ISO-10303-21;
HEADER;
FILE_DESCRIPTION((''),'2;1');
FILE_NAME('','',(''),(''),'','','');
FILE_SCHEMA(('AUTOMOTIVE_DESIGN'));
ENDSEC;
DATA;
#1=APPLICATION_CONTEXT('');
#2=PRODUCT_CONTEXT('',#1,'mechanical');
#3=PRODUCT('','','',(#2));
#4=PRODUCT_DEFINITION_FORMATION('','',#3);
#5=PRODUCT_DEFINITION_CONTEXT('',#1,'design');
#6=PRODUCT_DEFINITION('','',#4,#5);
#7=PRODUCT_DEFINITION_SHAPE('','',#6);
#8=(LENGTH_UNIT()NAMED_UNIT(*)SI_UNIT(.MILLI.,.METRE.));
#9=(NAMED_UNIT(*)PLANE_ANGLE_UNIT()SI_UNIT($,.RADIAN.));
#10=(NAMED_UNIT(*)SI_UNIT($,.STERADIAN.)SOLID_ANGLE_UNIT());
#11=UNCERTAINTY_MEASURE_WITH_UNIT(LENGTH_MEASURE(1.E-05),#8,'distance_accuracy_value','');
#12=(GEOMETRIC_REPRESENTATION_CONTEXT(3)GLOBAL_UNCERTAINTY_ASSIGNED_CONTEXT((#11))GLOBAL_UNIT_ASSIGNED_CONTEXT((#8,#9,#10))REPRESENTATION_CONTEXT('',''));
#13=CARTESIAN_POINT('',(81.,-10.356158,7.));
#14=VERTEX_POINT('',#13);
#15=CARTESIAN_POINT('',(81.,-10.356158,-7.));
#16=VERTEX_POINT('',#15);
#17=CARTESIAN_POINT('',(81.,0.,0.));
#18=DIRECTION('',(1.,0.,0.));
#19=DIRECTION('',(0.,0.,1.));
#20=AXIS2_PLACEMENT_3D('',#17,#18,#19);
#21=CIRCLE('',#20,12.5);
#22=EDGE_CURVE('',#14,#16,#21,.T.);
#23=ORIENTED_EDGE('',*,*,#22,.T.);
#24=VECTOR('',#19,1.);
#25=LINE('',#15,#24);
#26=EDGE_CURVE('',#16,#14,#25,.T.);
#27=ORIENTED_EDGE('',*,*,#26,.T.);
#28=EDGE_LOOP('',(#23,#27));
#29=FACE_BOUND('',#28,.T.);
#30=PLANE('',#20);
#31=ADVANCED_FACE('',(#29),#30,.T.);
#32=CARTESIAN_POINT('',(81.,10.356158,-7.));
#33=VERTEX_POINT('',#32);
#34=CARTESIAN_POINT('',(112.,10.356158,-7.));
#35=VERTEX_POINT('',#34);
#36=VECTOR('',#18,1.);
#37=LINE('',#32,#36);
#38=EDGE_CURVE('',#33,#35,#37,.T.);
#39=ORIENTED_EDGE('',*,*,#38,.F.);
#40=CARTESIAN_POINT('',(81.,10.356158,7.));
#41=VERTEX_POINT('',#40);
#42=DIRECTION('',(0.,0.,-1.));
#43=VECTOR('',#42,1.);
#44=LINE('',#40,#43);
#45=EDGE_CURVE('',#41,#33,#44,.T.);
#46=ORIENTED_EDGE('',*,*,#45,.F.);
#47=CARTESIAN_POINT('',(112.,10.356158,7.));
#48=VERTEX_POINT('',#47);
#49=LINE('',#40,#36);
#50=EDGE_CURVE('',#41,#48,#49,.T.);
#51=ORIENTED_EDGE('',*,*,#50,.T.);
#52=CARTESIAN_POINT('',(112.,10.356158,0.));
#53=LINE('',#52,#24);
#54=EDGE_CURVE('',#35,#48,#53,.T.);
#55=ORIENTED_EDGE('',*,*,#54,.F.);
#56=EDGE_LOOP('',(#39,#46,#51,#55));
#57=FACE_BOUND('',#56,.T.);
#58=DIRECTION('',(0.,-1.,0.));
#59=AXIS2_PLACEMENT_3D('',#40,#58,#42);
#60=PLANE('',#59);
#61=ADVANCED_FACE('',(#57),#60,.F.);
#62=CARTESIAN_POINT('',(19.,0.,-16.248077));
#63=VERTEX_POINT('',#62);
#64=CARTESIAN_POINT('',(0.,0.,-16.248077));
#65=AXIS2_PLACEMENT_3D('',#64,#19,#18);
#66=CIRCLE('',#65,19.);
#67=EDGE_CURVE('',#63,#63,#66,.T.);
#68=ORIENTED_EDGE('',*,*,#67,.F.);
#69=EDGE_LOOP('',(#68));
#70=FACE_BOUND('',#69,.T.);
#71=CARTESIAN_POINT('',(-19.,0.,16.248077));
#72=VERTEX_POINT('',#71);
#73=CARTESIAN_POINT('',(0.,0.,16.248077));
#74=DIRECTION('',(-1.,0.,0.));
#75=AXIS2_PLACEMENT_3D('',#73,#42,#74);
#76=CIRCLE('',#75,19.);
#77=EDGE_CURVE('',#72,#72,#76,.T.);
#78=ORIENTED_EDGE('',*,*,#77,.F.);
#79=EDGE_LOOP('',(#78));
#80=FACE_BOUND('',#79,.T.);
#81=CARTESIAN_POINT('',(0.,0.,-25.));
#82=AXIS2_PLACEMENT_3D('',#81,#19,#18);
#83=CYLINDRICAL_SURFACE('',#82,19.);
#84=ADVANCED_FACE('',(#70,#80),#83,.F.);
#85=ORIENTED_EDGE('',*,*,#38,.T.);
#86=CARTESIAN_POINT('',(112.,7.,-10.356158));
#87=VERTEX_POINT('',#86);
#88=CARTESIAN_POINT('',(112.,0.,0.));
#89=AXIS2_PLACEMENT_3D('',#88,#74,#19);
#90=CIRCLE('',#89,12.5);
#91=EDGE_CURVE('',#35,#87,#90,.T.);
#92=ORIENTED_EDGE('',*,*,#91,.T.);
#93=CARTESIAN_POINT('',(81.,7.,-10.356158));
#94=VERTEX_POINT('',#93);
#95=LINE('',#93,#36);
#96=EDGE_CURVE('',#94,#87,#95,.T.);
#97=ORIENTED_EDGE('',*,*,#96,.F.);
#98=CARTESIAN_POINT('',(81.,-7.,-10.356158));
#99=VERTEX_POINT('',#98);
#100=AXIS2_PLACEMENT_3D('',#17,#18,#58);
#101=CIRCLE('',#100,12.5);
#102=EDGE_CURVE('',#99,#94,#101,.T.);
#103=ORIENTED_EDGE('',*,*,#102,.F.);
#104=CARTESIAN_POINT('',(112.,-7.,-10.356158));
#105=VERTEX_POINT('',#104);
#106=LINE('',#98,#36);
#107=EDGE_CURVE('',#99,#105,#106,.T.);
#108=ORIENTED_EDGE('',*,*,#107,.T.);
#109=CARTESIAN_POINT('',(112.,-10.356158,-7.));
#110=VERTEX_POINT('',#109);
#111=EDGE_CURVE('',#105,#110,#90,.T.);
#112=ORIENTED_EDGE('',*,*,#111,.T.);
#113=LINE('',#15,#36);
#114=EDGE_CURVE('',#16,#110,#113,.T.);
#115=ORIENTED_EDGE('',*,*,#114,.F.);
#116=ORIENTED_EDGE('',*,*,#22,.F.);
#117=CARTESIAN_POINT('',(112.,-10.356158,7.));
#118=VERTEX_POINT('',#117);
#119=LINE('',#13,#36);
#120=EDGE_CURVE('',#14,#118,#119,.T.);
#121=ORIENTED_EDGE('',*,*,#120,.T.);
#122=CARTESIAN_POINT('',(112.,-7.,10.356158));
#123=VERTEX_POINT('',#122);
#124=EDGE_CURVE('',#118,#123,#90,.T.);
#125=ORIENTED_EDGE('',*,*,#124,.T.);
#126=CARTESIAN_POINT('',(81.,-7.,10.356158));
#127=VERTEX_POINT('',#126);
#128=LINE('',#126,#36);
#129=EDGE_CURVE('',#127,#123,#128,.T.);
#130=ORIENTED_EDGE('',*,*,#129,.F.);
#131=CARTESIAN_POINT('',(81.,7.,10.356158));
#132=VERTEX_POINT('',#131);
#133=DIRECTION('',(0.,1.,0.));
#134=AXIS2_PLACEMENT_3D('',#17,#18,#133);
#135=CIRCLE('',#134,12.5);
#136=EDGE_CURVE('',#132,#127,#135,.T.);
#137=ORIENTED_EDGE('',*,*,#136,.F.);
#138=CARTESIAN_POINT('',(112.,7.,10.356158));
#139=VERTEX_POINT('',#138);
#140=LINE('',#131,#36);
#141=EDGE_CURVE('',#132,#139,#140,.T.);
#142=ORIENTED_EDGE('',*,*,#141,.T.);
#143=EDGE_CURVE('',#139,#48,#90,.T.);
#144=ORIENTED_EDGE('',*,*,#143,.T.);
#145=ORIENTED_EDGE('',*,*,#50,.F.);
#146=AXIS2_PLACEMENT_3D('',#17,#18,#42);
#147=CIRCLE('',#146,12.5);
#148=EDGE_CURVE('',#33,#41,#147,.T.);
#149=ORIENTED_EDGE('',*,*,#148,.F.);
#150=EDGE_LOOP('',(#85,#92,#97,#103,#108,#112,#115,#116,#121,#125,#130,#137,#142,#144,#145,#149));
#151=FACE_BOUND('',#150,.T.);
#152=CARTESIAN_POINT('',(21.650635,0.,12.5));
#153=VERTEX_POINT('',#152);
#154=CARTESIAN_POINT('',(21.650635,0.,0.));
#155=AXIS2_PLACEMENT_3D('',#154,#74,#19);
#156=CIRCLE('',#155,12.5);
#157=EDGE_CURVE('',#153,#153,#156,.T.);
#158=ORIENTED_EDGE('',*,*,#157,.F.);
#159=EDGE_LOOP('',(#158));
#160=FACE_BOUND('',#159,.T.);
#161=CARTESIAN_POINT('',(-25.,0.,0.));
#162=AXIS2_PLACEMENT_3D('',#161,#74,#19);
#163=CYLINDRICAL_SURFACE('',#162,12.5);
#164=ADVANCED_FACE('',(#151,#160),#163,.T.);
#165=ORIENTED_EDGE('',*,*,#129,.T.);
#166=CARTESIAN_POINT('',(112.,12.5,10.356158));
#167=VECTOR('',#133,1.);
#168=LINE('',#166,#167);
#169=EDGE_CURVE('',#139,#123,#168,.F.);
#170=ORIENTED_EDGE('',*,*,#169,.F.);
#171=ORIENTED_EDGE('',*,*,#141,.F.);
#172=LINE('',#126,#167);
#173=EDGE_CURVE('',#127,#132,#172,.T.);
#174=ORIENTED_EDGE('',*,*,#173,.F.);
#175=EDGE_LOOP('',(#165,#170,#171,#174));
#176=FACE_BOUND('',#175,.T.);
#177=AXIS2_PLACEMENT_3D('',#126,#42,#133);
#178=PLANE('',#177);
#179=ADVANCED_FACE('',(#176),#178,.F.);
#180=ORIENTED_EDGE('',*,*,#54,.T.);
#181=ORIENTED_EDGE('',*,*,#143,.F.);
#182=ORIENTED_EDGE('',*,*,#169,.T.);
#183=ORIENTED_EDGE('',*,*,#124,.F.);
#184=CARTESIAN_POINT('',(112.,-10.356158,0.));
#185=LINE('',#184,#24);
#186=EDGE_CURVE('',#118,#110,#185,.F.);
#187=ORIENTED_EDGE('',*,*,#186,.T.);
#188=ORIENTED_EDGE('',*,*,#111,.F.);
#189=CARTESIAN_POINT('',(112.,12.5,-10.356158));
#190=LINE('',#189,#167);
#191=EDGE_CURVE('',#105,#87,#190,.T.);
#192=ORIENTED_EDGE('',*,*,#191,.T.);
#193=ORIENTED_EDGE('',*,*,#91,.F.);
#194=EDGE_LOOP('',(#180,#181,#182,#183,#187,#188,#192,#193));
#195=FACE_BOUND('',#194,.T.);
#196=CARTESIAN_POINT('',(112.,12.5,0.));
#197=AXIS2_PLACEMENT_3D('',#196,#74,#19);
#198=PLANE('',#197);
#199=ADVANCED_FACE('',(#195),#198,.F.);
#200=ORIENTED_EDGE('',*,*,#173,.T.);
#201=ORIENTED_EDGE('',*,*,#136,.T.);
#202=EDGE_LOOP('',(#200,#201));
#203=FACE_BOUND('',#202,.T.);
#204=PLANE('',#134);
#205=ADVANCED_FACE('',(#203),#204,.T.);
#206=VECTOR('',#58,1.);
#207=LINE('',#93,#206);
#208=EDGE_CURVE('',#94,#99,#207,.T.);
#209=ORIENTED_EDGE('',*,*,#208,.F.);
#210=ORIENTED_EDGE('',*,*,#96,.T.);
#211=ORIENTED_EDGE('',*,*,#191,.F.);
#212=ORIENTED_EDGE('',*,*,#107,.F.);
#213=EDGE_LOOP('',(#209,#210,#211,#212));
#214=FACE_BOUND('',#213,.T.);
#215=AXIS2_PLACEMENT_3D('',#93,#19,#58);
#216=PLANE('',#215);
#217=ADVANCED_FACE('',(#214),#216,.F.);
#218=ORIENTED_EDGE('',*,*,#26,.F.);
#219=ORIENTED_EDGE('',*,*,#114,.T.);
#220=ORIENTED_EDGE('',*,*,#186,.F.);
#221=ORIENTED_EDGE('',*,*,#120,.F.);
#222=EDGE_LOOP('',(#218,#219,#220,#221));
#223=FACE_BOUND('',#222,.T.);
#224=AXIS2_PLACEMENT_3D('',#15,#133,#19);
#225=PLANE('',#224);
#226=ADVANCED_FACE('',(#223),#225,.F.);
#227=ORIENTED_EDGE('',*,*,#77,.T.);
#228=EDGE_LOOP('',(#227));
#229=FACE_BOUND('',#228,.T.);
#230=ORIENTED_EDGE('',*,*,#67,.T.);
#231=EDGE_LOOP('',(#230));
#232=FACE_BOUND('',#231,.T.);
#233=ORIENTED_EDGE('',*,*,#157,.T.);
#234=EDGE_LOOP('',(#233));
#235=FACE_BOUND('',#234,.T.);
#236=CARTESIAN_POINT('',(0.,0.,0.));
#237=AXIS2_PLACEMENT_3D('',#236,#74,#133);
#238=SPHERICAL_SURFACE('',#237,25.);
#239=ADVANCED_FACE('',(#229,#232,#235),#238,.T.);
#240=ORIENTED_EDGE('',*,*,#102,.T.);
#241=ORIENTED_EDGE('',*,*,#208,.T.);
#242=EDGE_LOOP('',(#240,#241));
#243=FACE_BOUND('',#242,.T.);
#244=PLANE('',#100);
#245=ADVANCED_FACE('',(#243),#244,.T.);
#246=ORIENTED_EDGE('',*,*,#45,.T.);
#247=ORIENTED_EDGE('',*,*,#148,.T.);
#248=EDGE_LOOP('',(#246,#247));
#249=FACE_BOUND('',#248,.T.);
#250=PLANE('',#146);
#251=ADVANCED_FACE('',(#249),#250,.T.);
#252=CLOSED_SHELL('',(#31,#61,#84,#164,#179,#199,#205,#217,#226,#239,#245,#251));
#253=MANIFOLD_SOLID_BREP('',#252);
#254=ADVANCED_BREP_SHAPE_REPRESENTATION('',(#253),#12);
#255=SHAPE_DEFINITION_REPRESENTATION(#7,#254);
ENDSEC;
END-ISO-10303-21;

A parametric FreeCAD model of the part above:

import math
import FreeCAD as App
import Part
import Sketcher
from FreeCAD import Vector

doc = App.newDocument("Part")
body = doc.addObject("PartDesign::Body", "Body")

sketch1 = body.newObject("Sketcher::SketchObject", "Sketch")
sketch1.AttachmentSupport = (doc.getObject("XY_Plane"), [""])
sketch1.MapMode = "FlatFace"
sketch1.addGeometry(Part.LineSegment(Vector(-25, 0, 0), Vector(112, 0, 0)), False)
sketch1.addGeometry(Part.LineSegment(Vector(112, 0, 0), Vector(112, 12, 0)), False)
sketch1.addGeometry(Part.LineSegment(Vector(112, 12, 0), Vector(22, 12, 0)), False)
sketch1.addGeometry(Part.ArcOfCircle(Part.Circle(Vector(0, 0, 0), Vector(0, 0, 1), 25), math.radians(30), math.radians(180)), False)
sketch1.addConstraint(Sketcher.Constraint("Coincident", 0, 2, 1, 1))
sketch1.addConstraint(Sketcher.Constraint("Coincident", 1, 2, 2, 1))
sketch1.addConstraint(Sketcher.Constraint("Coincident", 2, 2, 3, 1))
sketch1.addConstraint(Sketcher.Constraint("Coincident", 3, 2, 0, 1))
sketch1.addConstraint(Sketcher.Constraint("Horizontal", 0))
sketch1.addConstraint(Sketcher.Constraint("Vertical", 1))
sketch1.addConstraint(Sketcher.Constraint("Horizontal", 2))
sketch1.addConstraint(Sketcher.Constraint("Coincident", 3, 3, -1, 1))
sketch1.addConstraint(Sketcher.Constraint("PointOnObject", 0, 2, -1))
sketch1.addConstraint(Sketcher.Constraint("Radius", 3, 25.0))
sketch1.addConstraint(Sketcher.Constraint("DistanceX", 0, 1, 0, 2, 137.0))
sketch1.addConstraint(Sketcher.Constraint("DistanceY", 1, 1, 1, 2, 12.5))
revolution = body.newObject("PartDesign::Revolution", "Revolution")
revolution.Profile = sketch1
revolution.ReferenceAxis = (sketch1, ["H_Axis"])
revolution.Angle = 360

sketch2 = body.newObject("Sketcher::SketchObject", "Sketch001")
sketch2.AttachmentSupport = (doc.getObject("XY_Plane"), [""])
sketch2.MapMode = "FlatFace"
sketch2.addGeometry(Part.Circle(Vector(0, 0, 0), Vector(0, 0, 1), 19), False)
sketch2.addConstraint(Sketcher.Constraint("Coincident", 0, 3, -1, 1))
sketch2.addConstraint(Sketcher.Constraint("Diameter", 0, 38.0))
pocket1 = body.newObject("PartDesign::Pocket", "Pocket")
pocket1.Profile = sketch2
pocket1.Type = "ThroughAll"
pocket1.Midplane = True

sketch3 = body.newObject("Sketcher::SketchObject", "Sketch002")
sketch3.AttachmentSupport = (doc.getObject("YZ_Plane"), [""])
sketch3.MapMode = "FlatFace"
sketch3.AttachmentOffset = App.Placement(Vector(0, 0, 81), App.Rotation())
sketch3.addGeometry(Part.LineSegment(Vector(10, 7, 0), Vector(10, -7, 0)), False)
sketch3.addGeometry(Part.ArcOfCircle(Part.Circle(Vector(0, 0, 0), Vector(0, 0, 1), 13), math.radians(-34), math.radians(34)), False)
sketch3.addConstraint(Sketcher.Constraint("Coincident", 0, 1, 1, 2))
sketch3.addConstraint(Sketcher.Constraint("Coincident", 1, 1, 0, 2))
sketch3.addConstraint(Sketcher.Constraint("Vertical", 0))
sketch3.addConstraint(Sketcher.Constraint("Coincident", 1, 3, -1, 1))
sketch3.addConstraint(Sketcher.Constraint("Radius", 1, 12.5))
sketch3.addConstraint(Sketcher.Constraint("DistanceY", 0, 2, 0, 1, 14.0))
pocket2 = body.newObject("PartDesign::Pocket", "Pocket001")
pocket2.Profile = sketch3
pocket2.Length = 172.20699
pocket2.Reversed = True
doc.recompute()

polarpattern = body.newObject("PartDesign::PolarPattern", "PolarPattern")
polarpattern.Originals = [pocket2]
polarpattern.Axis = (doc.getObject("X_Axis"), [""])
polarpattern.Angle = 360
polarpattern.Occurrences = 4
body.Tip = polarpattern

doc.recompute()
